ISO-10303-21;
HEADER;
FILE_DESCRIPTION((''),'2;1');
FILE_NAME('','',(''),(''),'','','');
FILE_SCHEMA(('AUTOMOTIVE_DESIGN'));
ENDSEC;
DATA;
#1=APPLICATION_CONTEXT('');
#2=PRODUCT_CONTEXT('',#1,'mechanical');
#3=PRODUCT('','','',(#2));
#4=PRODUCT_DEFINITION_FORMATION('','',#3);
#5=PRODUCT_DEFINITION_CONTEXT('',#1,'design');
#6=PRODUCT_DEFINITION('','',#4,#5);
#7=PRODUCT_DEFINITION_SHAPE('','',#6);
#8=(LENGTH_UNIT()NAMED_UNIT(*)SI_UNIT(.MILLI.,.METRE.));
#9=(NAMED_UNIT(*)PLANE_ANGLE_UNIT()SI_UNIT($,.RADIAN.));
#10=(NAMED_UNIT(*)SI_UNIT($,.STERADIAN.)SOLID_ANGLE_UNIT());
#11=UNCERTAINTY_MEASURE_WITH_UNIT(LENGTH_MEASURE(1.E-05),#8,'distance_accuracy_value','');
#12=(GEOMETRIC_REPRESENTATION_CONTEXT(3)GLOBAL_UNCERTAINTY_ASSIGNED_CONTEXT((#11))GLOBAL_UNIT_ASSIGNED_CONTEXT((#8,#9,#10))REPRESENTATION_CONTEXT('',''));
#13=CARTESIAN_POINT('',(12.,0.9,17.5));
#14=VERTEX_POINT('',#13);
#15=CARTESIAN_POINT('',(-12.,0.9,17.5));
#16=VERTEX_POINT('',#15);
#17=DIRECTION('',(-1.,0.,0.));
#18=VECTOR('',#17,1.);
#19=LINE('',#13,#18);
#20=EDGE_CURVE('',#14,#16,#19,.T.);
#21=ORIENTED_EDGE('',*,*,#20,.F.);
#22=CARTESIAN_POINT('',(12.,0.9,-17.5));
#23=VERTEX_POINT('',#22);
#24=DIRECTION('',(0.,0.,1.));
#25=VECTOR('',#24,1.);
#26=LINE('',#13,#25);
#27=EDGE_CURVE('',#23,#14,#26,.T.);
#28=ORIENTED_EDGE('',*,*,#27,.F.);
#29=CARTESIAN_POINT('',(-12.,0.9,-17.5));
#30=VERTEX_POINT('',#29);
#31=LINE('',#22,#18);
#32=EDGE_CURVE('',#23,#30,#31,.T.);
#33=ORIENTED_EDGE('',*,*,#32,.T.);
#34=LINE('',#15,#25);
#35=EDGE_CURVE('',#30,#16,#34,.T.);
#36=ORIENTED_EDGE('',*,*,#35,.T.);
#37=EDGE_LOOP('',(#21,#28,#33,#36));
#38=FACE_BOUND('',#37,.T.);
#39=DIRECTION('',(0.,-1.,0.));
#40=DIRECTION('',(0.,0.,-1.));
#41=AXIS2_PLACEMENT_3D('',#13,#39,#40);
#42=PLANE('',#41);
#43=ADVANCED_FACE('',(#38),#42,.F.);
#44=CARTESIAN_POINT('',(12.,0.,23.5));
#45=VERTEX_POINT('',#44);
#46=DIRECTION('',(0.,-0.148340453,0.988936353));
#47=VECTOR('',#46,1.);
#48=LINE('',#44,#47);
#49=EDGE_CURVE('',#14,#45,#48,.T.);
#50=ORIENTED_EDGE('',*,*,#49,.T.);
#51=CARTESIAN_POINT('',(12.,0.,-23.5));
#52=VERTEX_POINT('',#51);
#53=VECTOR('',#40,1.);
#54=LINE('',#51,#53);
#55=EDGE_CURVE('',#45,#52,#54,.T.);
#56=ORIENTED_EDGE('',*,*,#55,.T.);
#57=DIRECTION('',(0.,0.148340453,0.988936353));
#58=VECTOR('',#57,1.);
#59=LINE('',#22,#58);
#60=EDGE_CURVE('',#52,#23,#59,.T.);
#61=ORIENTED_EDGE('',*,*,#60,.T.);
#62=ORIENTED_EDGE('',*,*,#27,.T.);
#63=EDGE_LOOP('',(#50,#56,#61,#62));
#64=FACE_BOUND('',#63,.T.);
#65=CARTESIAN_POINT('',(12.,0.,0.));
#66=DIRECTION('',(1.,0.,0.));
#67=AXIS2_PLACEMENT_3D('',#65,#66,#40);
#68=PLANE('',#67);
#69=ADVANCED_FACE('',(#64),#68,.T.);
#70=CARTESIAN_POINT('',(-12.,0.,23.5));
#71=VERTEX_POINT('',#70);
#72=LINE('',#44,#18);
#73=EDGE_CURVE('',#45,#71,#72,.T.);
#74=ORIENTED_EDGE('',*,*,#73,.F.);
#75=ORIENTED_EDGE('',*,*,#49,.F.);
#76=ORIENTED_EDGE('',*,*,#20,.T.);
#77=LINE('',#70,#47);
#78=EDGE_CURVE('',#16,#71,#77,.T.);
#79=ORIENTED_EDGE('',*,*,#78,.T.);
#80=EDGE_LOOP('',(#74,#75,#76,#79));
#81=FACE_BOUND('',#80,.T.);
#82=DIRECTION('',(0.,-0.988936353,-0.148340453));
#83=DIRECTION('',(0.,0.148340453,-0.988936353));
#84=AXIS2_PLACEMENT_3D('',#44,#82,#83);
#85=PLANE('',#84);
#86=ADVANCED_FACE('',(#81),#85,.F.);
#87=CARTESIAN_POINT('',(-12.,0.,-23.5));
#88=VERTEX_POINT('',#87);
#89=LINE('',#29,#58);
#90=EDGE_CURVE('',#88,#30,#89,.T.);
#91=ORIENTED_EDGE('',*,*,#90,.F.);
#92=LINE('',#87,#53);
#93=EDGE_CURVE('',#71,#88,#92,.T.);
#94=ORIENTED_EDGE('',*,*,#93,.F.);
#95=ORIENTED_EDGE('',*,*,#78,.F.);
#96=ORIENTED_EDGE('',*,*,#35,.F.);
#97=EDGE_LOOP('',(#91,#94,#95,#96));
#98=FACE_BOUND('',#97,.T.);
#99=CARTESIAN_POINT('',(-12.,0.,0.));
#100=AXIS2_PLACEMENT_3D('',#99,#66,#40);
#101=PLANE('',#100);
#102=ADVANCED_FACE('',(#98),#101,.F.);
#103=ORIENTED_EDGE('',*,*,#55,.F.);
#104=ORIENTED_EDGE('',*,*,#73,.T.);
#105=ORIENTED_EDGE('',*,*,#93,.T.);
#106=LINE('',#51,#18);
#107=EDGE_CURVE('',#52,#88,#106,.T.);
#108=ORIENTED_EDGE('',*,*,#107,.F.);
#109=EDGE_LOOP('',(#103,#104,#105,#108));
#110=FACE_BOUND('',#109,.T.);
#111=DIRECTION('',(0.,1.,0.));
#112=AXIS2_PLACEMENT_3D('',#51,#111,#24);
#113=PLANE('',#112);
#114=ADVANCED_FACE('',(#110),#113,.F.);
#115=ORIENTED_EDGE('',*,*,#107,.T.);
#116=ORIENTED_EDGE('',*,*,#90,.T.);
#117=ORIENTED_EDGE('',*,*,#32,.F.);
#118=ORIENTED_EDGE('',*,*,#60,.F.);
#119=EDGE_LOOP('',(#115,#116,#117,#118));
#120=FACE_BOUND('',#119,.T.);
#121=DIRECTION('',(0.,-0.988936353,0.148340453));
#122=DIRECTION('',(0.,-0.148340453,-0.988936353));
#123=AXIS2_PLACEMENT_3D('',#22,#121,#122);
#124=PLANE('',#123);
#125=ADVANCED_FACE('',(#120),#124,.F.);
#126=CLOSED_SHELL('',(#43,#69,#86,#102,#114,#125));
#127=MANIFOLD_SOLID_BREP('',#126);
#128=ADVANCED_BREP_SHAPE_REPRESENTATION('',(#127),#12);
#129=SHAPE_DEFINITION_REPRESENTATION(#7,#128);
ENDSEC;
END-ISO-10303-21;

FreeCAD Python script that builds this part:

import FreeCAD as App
import Part
import Sketcher

V = App.Vector


def add_polygon(sketch, points):
    """Adds a closed chain of lines whose ends are joined by coincident constraints."""
    first, n = sketch.GeometryCount, len(points)
    for a, b in zip(points, points[1:] + points[:1]):
        sketch.addGeometry(Part.LineSegment(App.Vector(*a, 0), App.Vector(*b, 0)), False)
    for i in range(n):
        sketch.addConstraint(Sketcher.Constraint("Coincident", first + i, 2, first + (i + 1) % n, 1))

doc = App.newDocument("Part")
body = doc.addObject("PartDesign::Body", "Body")

sketch1 = body.newObject("Sketcher::SketchObject", "Sketch")
sketch1.AttachmentSupport = (doc.getObject("YZ_Plane"), [""])
sketch1.MapMode = "FlatFace"
add_polygon(sketch1, [(0, 24), (0, -24), (1, -18), (1, 18)])
sketch1.addConstraint(Sketcher.Constraint("Vertical", 0))
sketch1.addConstraint(Sketcher.Constraint("Vertical", 2))
sketch1.addConstraint(Sketcher.Constraint("Symmetric", 0, 2, 3, 2, -1, 1))
sketch1.addConstraint(Sketcher.Constraint("Equal", 1, 3))
sketch1.addConstraint(Sketcher.Constraint("DistanceY", 0, 2, 0, 1, 47.0))
sketch1.addConstraint(Sketcher.Constraint("DistanceY", 2, 1, 2, 2, 35.0))
sketch1.addConstraint(Sketcher.Constraint("DistanceX", -1, 1, 1, 2, 0.9))
pad1 = body.newObject("PartDesign::Pad", "Pad")
pad1.Profile = sketch1
pad1.Length = 24
pad1.Midplane = True

doc.recompute()
